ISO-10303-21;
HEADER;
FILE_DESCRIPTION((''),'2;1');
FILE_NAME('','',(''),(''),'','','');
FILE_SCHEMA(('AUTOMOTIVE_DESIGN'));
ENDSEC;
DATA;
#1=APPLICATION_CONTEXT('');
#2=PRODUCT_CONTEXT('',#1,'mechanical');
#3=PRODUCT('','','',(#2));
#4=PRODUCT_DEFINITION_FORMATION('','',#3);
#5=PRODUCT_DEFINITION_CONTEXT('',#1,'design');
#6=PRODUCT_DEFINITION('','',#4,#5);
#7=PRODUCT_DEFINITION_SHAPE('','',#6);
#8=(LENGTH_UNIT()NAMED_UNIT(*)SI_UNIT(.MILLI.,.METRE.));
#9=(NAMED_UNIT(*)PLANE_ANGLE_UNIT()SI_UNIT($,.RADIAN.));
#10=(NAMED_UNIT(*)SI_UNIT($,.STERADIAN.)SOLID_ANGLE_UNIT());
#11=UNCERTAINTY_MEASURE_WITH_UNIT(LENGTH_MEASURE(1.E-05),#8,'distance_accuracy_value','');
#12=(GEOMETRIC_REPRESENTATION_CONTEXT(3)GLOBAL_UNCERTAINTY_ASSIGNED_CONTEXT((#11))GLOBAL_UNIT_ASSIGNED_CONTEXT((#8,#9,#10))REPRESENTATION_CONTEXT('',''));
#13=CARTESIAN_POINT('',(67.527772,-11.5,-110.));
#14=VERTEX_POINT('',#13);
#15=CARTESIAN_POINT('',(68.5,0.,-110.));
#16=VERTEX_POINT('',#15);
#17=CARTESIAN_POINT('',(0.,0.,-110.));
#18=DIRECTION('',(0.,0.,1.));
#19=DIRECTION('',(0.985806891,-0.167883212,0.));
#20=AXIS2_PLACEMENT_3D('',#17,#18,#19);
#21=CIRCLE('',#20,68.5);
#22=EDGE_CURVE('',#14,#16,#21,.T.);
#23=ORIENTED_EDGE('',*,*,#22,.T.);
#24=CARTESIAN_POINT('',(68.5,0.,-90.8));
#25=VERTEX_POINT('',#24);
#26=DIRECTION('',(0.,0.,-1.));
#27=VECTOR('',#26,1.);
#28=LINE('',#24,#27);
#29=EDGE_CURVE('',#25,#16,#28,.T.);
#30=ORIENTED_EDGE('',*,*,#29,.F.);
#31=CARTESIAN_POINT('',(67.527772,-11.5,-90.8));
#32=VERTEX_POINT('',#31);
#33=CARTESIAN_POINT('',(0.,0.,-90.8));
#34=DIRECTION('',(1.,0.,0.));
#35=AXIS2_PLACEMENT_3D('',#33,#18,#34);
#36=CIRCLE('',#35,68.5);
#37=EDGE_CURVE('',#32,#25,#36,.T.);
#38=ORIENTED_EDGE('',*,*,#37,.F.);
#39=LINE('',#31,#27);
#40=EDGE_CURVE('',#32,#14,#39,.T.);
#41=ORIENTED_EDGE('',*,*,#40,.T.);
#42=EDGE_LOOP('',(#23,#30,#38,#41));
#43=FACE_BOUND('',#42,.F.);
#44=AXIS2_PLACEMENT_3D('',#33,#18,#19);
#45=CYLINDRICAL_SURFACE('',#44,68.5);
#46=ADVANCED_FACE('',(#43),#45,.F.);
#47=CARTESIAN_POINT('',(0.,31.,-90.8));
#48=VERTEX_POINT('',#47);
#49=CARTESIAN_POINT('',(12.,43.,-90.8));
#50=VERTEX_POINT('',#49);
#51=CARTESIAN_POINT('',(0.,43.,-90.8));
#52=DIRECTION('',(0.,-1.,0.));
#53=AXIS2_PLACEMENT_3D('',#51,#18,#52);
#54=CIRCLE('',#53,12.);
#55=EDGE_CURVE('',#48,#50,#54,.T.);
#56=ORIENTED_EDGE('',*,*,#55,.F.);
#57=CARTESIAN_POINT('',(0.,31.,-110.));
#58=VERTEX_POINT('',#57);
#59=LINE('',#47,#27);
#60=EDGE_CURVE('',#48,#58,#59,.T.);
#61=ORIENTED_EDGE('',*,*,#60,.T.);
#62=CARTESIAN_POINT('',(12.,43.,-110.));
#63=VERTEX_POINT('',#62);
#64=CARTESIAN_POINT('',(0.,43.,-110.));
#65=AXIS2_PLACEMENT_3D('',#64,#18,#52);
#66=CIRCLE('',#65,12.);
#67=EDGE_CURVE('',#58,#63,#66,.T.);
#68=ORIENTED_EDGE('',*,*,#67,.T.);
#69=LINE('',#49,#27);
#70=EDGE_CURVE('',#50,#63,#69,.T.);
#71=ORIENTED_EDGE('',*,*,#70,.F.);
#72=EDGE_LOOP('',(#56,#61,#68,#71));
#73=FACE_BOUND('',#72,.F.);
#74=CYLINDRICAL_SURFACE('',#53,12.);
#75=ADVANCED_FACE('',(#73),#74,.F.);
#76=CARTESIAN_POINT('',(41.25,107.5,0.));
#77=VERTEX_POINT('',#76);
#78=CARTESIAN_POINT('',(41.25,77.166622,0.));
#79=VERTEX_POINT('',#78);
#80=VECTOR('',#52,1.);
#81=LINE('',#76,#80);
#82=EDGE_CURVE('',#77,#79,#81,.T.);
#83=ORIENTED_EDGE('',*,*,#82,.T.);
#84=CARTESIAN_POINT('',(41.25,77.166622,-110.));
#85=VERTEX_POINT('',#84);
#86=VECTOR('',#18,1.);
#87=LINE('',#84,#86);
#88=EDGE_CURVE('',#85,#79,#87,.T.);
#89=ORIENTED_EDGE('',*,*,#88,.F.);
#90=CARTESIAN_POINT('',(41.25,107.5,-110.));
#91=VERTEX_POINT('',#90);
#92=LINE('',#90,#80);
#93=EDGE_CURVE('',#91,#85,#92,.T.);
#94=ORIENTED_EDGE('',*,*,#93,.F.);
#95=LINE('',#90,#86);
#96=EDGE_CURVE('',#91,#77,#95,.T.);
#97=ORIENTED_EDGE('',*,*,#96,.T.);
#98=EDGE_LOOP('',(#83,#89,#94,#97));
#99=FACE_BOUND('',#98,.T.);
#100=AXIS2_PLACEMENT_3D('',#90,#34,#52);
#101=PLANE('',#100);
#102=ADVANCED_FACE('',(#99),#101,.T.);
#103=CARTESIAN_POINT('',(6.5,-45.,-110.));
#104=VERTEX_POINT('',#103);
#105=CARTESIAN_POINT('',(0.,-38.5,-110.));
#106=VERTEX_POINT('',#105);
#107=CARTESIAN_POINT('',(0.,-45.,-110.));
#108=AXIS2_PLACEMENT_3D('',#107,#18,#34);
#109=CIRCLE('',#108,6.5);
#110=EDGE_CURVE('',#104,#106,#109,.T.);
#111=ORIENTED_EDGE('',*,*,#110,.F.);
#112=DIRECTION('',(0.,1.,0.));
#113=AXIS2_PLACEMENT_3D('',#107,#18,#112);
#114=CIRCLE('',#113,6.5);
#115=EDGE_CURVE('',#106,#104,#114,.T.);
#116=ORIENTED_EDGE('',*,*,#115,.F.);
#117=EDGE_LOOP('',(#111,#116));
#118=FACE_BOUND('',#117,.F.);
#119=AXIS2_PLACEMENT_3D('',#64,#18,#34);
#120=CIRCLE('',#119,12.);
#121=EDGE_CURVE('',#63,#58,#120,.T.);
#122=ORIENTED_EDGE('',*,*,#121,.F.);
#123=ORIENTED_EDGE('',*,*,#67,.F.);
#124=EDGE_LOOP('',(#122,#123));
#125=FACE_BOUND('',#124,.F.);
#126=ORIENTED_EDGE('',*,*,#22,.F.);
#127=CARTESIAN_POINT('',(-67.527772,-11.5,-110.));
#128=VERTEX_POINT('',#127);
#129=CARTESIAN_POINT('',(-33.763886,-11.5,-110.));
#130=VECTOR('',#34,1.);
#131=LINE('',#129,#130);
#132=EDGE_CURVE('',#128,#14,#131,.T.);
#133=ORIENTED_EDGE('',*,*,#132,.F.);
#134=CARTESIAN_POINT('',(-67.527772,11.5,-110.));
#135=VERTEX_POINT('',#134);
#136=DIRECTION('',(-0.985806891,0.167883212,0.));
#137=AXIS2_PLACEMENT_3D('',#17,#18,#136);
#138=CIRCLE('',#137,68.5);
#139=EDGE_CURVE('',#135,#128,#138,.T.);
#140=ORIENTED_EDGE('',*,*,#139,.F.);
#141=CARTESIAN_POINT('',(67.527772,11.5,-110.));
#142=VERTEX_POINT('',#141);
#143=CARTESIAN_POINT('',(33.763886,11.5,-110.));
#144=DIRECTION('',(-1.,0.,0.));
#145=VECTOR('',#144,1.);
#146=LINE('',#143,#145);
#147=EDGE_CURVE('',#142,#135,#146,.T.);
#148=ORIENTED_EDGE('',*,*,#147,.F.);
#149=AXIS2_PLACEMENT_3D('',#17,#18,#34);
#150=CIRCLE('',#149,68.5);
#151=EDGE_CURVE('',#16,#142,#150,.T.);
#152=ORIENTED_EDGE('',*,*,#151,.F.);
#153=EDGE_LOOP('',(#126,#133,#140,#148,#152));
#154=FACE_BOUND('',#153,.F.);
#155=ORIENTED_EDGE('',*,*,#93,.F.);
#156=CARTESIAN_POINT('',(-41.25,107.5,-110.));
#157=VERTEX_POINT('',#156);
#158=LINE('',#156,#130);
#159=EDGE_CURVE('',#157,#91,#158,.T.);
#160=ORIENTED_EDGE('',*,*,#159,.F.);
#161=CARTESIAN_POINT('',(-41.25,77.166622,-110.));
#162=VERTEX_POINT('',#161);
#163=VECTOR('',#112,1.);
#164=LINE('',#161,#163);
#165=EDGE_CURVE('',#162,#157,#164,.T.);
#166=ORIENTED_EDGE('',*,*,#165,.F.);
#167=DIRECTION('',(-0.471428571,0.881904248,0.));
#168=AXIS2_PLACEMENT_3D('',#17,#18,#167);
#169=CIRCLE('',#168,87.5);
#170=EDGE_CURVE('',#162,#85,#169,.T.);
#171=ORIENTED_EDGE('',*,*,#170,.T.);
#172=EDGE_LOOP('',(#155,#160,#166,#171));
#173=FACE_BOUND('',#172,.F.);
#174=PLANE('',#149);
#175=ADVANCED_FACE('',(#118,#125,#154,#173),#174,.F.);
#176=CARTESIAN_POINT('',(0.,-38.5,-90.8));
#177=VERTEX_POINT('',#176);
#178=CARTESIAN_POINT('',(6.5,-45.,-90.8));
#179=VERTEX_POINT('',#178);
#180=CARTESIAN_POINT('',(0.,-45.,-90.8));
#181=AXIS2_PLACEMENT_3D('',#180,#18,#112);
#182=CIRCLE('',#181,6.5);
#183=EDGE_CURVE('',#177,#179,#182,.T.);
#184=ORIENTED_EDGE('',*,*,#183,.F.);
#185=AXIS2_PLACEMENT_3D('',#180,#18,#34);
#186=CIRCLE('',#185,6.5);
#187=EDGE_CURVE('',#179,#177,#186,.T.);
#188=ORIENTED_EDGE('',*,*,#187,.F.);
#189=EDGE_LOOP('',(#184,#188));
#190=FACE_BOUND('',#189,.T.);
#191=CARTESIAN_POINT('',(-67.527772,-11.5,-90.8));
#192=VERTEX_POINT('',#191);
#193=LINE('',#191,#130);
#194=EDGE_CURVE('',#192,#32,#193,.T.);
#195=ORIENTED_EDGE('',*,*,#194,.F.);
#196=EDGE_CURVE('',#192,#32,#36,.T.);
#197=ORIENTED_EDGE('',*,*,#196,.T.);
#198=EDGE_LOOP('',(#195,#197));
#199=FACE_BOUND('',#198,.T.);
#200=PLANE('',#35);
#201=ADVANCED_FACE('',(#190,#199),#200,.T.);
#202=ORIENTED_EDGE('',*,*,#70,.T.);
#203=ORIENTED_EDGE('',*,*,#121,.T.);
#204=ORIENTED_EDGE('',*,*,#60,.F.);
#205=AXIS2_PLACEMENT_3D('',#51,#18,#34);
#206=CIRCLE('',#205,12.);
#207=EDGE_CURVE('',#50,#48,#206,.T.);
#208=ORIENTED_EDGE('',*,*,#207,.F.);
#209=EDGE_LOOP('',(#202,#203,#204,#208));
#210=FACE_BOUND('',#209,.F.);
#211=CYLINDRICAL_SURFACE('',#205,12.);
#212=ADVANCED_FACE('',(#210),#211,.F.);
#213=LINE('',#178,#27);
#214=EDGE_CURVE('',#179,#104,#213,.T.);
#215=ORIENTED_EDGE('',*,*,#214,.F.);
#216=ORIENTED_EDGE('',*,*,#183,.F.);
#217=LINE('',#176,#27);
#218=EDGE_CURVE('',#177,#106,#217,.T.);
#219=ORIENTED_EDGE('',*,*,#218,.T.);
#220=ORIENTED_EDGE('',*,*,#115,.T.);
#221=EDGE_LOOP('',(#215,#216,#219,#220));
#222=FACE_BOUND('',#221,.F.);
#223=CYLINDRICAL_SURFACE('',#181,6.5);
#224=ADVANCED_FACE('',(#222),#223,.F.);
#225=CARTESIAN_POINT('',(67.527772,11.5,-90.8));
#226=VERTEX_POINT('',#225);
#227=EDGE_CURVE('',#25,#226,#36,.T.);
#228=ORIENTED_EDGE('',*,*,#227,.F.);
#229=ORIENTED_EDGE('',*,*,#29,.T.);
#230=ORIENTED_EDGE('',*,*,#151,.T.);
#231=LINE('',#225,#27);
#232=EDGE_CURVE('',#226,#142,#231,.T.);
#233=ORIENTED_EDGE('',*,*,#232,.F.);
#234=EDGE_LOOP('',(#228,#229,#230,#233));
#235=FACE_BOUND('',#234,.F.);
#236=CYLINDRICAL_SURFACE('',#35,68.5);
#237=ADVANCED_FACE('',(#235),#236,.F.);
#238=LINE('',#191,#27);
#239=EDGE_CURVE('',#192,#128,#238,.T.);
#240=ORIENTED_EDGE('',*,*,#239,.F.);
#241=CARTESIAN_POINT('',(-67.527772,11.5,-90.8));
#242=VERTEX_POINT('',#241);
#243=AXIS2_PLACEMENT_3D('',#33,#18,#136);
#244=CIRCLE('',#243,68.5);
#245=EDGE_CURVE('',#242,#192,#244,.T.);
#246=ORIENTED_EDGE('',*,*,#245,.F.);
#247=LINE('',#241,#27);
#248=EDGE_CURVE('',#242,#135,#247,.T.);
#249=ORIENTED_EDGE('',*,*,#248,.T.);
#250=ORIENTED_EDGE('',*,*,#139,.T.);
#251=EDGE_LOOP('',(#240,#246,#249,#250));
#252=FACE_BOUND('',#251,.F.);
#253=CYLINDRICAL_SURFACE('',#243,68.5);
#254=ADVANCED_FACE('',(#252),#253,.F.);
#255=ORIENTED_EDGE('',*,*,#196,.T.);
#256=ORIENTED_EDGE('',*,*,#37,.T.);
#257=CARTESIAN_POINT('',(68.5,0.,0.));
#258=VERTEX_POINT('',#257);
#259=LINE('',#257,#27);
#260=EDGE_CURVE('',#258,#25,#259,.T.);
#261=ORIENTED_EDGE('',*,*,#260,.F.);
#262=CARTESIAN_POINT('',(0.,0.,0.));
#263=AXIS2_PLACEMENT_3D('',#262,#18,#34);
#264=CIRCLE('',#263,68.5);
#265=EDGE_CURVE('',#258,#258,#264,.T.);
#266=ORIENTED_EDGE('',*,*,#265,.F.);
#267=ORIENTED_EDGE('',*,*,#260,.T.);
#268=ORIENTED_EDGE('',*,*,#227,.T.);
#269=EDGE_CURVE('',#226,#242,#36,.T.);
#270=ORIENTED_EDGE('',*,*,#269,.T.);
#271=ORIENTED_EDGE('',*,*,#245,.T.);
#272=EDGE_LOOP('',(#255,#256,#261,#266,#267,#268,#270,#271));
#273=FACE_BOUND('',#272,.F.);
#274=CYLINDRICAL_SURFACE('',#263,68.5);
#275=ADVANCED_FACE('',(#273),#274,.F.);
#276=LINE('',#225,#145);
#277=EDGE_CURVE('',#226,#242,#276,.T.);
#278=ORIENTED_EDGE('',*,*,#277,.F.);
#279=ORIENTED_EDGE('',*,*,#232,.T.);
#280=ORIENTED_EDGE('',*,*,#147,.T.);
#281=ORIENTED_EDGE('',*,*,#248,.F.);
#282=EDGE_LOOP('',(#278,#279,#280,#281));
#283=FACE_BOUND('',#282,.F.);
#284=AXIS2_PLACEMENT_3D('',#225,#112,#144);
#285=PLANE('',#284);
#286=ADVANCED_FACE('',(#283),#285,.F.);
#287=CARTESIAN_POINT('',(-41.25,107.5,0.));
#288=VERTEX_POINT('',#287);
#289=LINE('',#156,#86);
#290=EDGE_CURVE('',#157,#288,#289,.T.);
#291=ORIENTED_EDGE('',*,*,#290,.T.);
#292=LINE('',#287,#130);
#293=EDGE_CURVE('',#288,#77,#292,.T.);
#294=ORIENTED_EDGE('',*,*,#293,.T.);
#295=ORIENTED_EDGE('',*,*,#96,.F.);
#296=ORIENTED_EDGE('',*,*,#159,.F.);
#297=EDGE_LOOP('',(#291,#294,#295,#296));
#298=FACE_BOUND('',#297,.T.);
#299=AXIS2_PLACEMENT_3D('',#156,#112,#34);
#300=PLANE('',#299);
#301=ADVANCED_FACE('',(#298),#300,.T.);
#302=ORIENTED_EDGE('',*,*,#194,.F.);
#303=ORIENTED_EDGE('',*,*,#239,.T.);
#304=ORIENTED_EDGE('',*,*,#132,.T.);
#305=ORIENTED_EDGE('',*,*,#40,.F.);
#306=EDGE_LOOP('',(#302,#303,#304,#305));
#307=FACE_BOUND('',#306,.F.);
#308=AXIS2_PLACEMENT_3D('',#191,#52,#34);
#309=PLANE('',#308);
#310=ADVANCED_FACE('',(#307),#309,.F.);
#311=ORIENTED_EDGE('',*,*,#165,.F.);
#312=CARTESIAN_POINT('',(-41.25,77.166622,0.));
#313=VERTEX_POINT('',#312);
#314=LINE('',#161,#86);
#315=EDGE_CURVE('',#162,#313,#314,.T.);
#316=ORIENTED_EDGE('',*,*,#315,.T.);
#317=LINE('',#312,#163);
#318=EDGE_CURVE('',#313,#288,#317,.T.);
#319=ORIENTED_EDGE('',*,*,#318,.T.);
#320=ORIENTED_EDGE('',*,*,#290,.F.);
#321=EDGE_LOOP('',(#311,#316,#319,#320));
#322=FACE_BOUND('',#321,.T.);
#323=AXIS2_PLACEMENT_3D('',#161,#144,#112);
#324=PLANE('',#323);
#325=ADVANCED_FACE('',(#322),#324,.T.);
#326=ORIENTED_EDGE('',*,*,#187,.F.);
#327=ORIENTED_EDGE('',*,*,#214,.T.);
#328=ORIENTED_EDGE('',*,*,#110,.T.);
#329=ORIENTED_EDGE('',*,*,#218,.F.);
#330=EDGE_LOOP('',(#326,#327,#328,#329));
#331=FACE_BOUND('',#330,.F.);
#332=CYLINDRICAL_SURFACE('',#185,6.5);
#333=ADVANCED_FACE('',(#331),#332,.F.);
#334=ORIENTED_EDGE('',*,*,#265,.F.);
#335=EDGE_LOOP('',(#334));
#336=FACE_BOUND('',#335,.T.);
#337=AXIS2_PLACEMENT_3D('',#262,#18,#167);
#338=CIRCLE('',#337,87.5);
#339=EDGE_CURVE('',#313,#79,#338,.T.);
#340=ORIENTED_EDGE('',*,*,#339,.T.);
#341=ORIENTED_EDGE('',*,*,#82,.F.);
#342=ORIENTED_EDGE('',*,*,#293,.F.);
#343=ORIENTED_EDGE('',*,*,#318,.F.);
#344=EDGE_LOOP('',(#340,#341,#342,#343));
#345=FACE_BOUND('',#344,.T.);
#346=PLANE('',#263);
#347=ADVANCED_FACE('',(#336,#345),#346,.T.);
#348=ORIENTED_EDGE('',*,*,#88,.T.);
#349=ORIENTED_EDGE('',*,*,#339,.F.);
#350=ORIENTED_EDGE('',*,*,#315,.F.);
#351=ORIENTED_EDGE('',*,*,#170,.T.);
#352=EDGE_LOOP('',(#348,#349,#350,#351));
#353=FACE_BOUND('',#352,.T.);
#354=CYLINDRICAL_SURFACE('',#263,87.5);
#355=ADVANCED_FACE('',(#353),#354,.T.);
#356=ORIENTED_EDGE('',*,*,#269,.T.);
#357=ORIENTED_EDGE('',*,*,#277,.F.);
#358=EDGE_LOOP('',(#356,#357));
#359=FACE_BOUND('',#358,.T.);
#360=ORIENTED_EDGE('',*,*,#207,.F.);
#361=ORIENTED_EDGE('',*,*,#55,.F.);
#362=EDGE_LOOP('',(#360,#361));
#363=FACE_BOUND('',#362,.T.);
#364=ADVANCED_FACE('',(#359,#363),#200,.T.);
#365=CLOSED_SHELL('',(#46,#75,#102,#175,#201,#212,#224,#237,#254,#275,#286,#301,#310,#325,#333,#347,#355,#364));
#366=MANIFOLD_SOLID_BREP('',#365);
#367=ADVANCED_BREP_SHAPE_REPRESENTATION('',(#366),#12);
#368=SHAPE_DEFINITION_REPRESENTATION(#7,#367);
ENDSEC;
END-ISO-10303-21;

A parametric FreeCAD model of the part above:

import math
import FreeCAD as App
import Part
import Sketcher

V = App.Vector

doc = App.newDocument("Part")
body = doc.addObject("PartDesign::Body", "Body")

# Sketch on XY plane
sketch1 = doc.addObject("Sketcher::SketchObject", "Sketch")
body.addObject(sketch1)
sketch1.AttachmentSupport = (doc.XY_Plane, [""])
sketch1.MapMode = "FlatFace"
sketch1.addGeometry([
    Part.LineSegment(V(-165, 150, 0), V(-165, -150, 0)),
    Part.LineSegment(V(-165, -150, 0), V(165, -150, 0)),
    Part.LineSegment(V(165, -150, 0), V(165, 150, 0)),
    Part.LineSegment(V(165, 150, 0), V(-165, 150, 0)),
], False)
sketch1.addConstraint([
    Sketcher.Constraint("Coincident", 0, 2, 1, 1),
    Sketcher.Constraint("Coincident", 1, 2, 2, 1),
    Sketcher.Constraint("Coincident", 2, 2, 3, 1),
    Sketcher.Constraint("Coincident", 3, 2, 0, 1),
    Sketcher.Constraint("Vertical", 0),
    Sketcher.Constraint("Horizontal", 1),
    Sketcher.Constraint("Vertical", 2),
    Sketcher.Constraint("Horizontal", 3),
    Sketcher.Constraint("Symmetric", 0, 2, 2, 2, -1, 1),
    Sketcher.Constraint("DistanceX", 1, 1, 1, 2, 330.0),
    Sketcher.Constraint("DistanceY", 0, 2, 0, 1, 300.0),
])
pad1 = doc.addObject("PartDesign::Pad", "Pad")
body.addObject(pad1)
pad1.Profile = sketch1
pad1.Length = 110
pad1.Reversed = True

# Sketch on XY plane
sketch2 = doc.addObject("Sketcher::SketchObject", "Sketch001")
body.addObject(sketch2)
sketch2.AttachmentSupport = (doc.XY_Plane, [""])
sketch2.MapMode = "FlatFace"
sketch2.addGeometry(Part.Circle(V(0, 0, 0), V(0, 0, 1), 68), False)
sketch2.addConstraint([
    Sketcher.Constraint("Coincident", 0, 3, -1, 1),
    Sketcher.Constraint("Diameter", 0, 137.0),
])
pocket1 = doc.addObject("PartDesign::Pocket", "Pocket")
body.addObject(pocket1)
pocket1.Profile = sketch2
pocket1.Length = 90.8

# Sketch on XY plane
sketch3 = doc.addObject("Sketcher::SketchObject", "Sketch002")
body.addObject(sketch3)
sketch3.AttachmentSupport = (doc.XY_Plane, [""])
sketch3.MapMode = "FlatFace"
sketch3.AttachmentOffset = App.Placement(V(0, 0, -90.8), App.Rotation())
sketch3.addGeometry([
    Part.ArcOfCircle(Part.Circle(V(0, 0, 0), V(0, 0, 1), 68), math.radians(170.34), math.radians(189.66)),  # 0
    Part.LineSegment(V(-68, -12, 0), V(68, -12, 0)),  # 1
    Part.ArcOfCircle(Part.Circle(V(0, 0, 0), V(0, 0, 1), 68), math.radians(-9.66), math.radians(0)),  # 2
    Part.ArcOfCircle(Part.Circle(V(0, 0, 0), V(0, 0, 1), 68), math.radians(0), math.radians(9.66)),  # 3
    Part.LineSegment(V(68, 12, 0), V(-68, 12, 0)),  # 4
    Part.ArcOfCircle(Part.Circle(V(0, 43, 0), V(0, 0, 1), 12), math.radians(0), math.radians(270)),  # 5
    Part.ArcOfCircle(Part.Circle(V(0, 43, 0), V(0, 0, 1), 12), math.radians(-90), math.radians(0)),  # 6
    Part.ArcOfCircle(Part.Circle(V(0, -45, 0), V(0, 0, 1), 6), math.radians(0), math.radians(90)),  # 7
    Part.ArcOfCircle(Part.Circle(V(0, -45, 0), V(0, 0, 1), 6), math.radians(90), math.radians(360)),  # 8
], False)
sketch3.addConstraint([
    Sketcher.Constraint("Coincident", 0, 2, 1, 1),
    Sketcher.Constraint("Coincident", 1, 2, 2, 1),
    Sketcher.Constraint("Tangent", 2, 2, 3, 1),
    Sketcher.Constraint("Coincident", 3, 2, 4, 1),
    Sketcher.Constraint("Coincident", 4, 2, 0, 1),
    Sketcher.Constraint("Tangent", 5, 1, 6, 2),
    Sketcher.Constraint("Coincident", 6, 1, 5, 2),
    Sketcher.Constraint("Tangent", 7, 1, 8, 2),
    Sketcher.Constraint("Coincident", 8, 1, 7, 2),
    Sketcher.Constraint("Horizontal", 1),
    Sketcher.Constraint("Horizontal", 4),
    Sketcher.Constraint("Coincident", 0, 3, -1, 1),
    Sketcher.Constraint("Coincident", 2, 3, -1, 1),
    Sketcher.Constraint("Equal", 0, 2),
    Sketcher.Constraint("Equal", 2, 3),
    Sketcher.Constraint("PointOnObject", 5, 3, -2),
    Sketcher.Constraint("PointOnObject", 7, 3, -2),
    Sketcher.Constraint("PointOnObject", 2, 2, -1),
    Sketcher.Constraint("PointOnObject", 6, 1, -2),
    Sketcher.Constraint("PointOnObject", 8, 1, -2),
    Sketcher.Constraint("Horizontal", 6, 3, 5, 1),
    Sketcher.Constraint("Horizontal", 8, 3, 7, 1),
    Sketcher.Constraint("Vertical", 1, 2, 3, 2),
    Sketcher.Constraint("Radius", 5, 12.0),
    Sketcher.Constraint("Radius", 0, 68.5),
    Sketcher.Constraint("Radius", 7, 6.5),
    Sketcher.Constraint("DistanceY", -1, 1, 5, 3, 43.0),
    Sketcher.Constraint("DistanceY", 7, 3, -1, 1, 45.0),
    Sketcher.Constraint("DistanceY", 1, 2, 3, 2, 23.0),
])
pocket2 = doc.addObject("PartDesign::Pocket", "Pocket001")
body.addObject(pocket2)
pocket2.Profile = sketch3
pocket2.Type = "ThroughAll"

# Sketch on XY plane
sketch4 = doc.addObject("Sketcher::SketchObject", "Sketch003")
body.addObject(sketch4)
sketch4.AttachmentSupport = (doc.XY_Plane, [""])
sketch4.MapMode = "FlatFace"
sketch4.addGeometry([
    Part.LineSegment(V(-165, 150, 0), V(-165, -150, 0)),  # 0
    Part.LineSegment(V(-165, -150, 0), V(165, -150, 0)),  # 1
    Part.LineSegment(V(165, -150, 0), V(165, 150, 0)),  # 2
    Part.LineSegment(V(165, 150, 0), V(-165, 150, 0)),  # 3
    Part.Circle(V(0, 0, 0), V(0, 0, 1), 88),  # 4
], False)
sketch4.addConstraint([
    Sketcher.Constraint("Coincident", 0, 2, 1, 1),
    Sketcher.Constraint("Coincident", 1, 2, 2, 1),
    Sketcher.Constraint("Coincident", 2, 2, 3, 1),
    Sketcher.Constraint("Coincident", 3, 2, 0, 1),
    Sketcher.Constraint("Vertical", 0),
    Sketcher.Constraint("Horizontal", 1),
    Sketcher.Constraint("Vertical", 2),
    Sketcher.Constraint("Horizontal", 3),
    Sketcher.Constraint("Coincident", 4, 3, -1, 1),
    Sketcher.Constraint("Symmetric", 0, 2, 2, 2, -1, 1),
    Sketcher.Constraint("Diameter", 4, 175.0),
    Sketcher.Constraint("DistanceX", 1, 1, 1, 2, 330.0),
    Sketcher.Constraint("DistanceY", 0, 2, 0, 1, 300.0),
])
pocket3 = doc.addObject("PartDesign::Pocket", "Pocket002")
body.addObject(pocket3)
pocket3.Profile = sketch4
pocket3.Type = "ThroughAll"

# Sketch on XY plane
sketch5 = doc.addObject("Sketcher::SketchObject", "Sketch004")
body.addObject(sketch5)
sketch5.AttachmentSupport = (doc.XY_Plane, [""])
sketch5.MapMode = "FlatFace"
sketch5.AttachmentOffset = App.Placement(V(0, 0, -110), App.Rotation())
sketch5.addGeometry([
    Part.ArcOfCircle(Part.Circle(V(0, 0, 0), V(0, 0, 1), 88), math.radians(62), math.radians(118)),
    Part.LineSegment(V(-41, 77, 0), V(-41, 108, 0)),
    Part.LineSegment(V(-41, 108, 0), V(41, 108, 0)),
    Part.LineSegment(V(41, 108, 0), V(41, 77, 0)),
], False)
sketch5.addConstraint([
    Sketcher.Constraint("Coincident", 0, 2, 1, 1),
    Sketcher.Constraint("Coincident", 1, 2, 2, 1),
    Sketcher.Constraint("Coincident", 2, 2, 3, 1),
    Sketcher.Constraint("Coincident", 3, 2, 0, 1),
    Sketcher.Constraint("Vertical", 1),
    Sketcher.Constraint("Horizontal", 2),
    Sketcher.Constraint("Vertical", 3),
    Sketcher.Constraint("Coincident", 0, 3, -1, 1),
    Sketcher.Constraint("Horizontal", 0, 2, 3, 2),
    Sketcher.Constraint("Radius", 0, 87.5),
    Sketcher.Constraint("DistanceX", 2, 1, 2, 2, 82.5),
    Sketcher.Constraint("DistanceY", -1, 1, 1, 2, 107.5),
])
pad2 = doc.addObject("PartDesign::Pad", "Pad001")
body.addObject(pad2)
pad2.Profile = sketch5
pad2.Length = 110

doc.recompute()
